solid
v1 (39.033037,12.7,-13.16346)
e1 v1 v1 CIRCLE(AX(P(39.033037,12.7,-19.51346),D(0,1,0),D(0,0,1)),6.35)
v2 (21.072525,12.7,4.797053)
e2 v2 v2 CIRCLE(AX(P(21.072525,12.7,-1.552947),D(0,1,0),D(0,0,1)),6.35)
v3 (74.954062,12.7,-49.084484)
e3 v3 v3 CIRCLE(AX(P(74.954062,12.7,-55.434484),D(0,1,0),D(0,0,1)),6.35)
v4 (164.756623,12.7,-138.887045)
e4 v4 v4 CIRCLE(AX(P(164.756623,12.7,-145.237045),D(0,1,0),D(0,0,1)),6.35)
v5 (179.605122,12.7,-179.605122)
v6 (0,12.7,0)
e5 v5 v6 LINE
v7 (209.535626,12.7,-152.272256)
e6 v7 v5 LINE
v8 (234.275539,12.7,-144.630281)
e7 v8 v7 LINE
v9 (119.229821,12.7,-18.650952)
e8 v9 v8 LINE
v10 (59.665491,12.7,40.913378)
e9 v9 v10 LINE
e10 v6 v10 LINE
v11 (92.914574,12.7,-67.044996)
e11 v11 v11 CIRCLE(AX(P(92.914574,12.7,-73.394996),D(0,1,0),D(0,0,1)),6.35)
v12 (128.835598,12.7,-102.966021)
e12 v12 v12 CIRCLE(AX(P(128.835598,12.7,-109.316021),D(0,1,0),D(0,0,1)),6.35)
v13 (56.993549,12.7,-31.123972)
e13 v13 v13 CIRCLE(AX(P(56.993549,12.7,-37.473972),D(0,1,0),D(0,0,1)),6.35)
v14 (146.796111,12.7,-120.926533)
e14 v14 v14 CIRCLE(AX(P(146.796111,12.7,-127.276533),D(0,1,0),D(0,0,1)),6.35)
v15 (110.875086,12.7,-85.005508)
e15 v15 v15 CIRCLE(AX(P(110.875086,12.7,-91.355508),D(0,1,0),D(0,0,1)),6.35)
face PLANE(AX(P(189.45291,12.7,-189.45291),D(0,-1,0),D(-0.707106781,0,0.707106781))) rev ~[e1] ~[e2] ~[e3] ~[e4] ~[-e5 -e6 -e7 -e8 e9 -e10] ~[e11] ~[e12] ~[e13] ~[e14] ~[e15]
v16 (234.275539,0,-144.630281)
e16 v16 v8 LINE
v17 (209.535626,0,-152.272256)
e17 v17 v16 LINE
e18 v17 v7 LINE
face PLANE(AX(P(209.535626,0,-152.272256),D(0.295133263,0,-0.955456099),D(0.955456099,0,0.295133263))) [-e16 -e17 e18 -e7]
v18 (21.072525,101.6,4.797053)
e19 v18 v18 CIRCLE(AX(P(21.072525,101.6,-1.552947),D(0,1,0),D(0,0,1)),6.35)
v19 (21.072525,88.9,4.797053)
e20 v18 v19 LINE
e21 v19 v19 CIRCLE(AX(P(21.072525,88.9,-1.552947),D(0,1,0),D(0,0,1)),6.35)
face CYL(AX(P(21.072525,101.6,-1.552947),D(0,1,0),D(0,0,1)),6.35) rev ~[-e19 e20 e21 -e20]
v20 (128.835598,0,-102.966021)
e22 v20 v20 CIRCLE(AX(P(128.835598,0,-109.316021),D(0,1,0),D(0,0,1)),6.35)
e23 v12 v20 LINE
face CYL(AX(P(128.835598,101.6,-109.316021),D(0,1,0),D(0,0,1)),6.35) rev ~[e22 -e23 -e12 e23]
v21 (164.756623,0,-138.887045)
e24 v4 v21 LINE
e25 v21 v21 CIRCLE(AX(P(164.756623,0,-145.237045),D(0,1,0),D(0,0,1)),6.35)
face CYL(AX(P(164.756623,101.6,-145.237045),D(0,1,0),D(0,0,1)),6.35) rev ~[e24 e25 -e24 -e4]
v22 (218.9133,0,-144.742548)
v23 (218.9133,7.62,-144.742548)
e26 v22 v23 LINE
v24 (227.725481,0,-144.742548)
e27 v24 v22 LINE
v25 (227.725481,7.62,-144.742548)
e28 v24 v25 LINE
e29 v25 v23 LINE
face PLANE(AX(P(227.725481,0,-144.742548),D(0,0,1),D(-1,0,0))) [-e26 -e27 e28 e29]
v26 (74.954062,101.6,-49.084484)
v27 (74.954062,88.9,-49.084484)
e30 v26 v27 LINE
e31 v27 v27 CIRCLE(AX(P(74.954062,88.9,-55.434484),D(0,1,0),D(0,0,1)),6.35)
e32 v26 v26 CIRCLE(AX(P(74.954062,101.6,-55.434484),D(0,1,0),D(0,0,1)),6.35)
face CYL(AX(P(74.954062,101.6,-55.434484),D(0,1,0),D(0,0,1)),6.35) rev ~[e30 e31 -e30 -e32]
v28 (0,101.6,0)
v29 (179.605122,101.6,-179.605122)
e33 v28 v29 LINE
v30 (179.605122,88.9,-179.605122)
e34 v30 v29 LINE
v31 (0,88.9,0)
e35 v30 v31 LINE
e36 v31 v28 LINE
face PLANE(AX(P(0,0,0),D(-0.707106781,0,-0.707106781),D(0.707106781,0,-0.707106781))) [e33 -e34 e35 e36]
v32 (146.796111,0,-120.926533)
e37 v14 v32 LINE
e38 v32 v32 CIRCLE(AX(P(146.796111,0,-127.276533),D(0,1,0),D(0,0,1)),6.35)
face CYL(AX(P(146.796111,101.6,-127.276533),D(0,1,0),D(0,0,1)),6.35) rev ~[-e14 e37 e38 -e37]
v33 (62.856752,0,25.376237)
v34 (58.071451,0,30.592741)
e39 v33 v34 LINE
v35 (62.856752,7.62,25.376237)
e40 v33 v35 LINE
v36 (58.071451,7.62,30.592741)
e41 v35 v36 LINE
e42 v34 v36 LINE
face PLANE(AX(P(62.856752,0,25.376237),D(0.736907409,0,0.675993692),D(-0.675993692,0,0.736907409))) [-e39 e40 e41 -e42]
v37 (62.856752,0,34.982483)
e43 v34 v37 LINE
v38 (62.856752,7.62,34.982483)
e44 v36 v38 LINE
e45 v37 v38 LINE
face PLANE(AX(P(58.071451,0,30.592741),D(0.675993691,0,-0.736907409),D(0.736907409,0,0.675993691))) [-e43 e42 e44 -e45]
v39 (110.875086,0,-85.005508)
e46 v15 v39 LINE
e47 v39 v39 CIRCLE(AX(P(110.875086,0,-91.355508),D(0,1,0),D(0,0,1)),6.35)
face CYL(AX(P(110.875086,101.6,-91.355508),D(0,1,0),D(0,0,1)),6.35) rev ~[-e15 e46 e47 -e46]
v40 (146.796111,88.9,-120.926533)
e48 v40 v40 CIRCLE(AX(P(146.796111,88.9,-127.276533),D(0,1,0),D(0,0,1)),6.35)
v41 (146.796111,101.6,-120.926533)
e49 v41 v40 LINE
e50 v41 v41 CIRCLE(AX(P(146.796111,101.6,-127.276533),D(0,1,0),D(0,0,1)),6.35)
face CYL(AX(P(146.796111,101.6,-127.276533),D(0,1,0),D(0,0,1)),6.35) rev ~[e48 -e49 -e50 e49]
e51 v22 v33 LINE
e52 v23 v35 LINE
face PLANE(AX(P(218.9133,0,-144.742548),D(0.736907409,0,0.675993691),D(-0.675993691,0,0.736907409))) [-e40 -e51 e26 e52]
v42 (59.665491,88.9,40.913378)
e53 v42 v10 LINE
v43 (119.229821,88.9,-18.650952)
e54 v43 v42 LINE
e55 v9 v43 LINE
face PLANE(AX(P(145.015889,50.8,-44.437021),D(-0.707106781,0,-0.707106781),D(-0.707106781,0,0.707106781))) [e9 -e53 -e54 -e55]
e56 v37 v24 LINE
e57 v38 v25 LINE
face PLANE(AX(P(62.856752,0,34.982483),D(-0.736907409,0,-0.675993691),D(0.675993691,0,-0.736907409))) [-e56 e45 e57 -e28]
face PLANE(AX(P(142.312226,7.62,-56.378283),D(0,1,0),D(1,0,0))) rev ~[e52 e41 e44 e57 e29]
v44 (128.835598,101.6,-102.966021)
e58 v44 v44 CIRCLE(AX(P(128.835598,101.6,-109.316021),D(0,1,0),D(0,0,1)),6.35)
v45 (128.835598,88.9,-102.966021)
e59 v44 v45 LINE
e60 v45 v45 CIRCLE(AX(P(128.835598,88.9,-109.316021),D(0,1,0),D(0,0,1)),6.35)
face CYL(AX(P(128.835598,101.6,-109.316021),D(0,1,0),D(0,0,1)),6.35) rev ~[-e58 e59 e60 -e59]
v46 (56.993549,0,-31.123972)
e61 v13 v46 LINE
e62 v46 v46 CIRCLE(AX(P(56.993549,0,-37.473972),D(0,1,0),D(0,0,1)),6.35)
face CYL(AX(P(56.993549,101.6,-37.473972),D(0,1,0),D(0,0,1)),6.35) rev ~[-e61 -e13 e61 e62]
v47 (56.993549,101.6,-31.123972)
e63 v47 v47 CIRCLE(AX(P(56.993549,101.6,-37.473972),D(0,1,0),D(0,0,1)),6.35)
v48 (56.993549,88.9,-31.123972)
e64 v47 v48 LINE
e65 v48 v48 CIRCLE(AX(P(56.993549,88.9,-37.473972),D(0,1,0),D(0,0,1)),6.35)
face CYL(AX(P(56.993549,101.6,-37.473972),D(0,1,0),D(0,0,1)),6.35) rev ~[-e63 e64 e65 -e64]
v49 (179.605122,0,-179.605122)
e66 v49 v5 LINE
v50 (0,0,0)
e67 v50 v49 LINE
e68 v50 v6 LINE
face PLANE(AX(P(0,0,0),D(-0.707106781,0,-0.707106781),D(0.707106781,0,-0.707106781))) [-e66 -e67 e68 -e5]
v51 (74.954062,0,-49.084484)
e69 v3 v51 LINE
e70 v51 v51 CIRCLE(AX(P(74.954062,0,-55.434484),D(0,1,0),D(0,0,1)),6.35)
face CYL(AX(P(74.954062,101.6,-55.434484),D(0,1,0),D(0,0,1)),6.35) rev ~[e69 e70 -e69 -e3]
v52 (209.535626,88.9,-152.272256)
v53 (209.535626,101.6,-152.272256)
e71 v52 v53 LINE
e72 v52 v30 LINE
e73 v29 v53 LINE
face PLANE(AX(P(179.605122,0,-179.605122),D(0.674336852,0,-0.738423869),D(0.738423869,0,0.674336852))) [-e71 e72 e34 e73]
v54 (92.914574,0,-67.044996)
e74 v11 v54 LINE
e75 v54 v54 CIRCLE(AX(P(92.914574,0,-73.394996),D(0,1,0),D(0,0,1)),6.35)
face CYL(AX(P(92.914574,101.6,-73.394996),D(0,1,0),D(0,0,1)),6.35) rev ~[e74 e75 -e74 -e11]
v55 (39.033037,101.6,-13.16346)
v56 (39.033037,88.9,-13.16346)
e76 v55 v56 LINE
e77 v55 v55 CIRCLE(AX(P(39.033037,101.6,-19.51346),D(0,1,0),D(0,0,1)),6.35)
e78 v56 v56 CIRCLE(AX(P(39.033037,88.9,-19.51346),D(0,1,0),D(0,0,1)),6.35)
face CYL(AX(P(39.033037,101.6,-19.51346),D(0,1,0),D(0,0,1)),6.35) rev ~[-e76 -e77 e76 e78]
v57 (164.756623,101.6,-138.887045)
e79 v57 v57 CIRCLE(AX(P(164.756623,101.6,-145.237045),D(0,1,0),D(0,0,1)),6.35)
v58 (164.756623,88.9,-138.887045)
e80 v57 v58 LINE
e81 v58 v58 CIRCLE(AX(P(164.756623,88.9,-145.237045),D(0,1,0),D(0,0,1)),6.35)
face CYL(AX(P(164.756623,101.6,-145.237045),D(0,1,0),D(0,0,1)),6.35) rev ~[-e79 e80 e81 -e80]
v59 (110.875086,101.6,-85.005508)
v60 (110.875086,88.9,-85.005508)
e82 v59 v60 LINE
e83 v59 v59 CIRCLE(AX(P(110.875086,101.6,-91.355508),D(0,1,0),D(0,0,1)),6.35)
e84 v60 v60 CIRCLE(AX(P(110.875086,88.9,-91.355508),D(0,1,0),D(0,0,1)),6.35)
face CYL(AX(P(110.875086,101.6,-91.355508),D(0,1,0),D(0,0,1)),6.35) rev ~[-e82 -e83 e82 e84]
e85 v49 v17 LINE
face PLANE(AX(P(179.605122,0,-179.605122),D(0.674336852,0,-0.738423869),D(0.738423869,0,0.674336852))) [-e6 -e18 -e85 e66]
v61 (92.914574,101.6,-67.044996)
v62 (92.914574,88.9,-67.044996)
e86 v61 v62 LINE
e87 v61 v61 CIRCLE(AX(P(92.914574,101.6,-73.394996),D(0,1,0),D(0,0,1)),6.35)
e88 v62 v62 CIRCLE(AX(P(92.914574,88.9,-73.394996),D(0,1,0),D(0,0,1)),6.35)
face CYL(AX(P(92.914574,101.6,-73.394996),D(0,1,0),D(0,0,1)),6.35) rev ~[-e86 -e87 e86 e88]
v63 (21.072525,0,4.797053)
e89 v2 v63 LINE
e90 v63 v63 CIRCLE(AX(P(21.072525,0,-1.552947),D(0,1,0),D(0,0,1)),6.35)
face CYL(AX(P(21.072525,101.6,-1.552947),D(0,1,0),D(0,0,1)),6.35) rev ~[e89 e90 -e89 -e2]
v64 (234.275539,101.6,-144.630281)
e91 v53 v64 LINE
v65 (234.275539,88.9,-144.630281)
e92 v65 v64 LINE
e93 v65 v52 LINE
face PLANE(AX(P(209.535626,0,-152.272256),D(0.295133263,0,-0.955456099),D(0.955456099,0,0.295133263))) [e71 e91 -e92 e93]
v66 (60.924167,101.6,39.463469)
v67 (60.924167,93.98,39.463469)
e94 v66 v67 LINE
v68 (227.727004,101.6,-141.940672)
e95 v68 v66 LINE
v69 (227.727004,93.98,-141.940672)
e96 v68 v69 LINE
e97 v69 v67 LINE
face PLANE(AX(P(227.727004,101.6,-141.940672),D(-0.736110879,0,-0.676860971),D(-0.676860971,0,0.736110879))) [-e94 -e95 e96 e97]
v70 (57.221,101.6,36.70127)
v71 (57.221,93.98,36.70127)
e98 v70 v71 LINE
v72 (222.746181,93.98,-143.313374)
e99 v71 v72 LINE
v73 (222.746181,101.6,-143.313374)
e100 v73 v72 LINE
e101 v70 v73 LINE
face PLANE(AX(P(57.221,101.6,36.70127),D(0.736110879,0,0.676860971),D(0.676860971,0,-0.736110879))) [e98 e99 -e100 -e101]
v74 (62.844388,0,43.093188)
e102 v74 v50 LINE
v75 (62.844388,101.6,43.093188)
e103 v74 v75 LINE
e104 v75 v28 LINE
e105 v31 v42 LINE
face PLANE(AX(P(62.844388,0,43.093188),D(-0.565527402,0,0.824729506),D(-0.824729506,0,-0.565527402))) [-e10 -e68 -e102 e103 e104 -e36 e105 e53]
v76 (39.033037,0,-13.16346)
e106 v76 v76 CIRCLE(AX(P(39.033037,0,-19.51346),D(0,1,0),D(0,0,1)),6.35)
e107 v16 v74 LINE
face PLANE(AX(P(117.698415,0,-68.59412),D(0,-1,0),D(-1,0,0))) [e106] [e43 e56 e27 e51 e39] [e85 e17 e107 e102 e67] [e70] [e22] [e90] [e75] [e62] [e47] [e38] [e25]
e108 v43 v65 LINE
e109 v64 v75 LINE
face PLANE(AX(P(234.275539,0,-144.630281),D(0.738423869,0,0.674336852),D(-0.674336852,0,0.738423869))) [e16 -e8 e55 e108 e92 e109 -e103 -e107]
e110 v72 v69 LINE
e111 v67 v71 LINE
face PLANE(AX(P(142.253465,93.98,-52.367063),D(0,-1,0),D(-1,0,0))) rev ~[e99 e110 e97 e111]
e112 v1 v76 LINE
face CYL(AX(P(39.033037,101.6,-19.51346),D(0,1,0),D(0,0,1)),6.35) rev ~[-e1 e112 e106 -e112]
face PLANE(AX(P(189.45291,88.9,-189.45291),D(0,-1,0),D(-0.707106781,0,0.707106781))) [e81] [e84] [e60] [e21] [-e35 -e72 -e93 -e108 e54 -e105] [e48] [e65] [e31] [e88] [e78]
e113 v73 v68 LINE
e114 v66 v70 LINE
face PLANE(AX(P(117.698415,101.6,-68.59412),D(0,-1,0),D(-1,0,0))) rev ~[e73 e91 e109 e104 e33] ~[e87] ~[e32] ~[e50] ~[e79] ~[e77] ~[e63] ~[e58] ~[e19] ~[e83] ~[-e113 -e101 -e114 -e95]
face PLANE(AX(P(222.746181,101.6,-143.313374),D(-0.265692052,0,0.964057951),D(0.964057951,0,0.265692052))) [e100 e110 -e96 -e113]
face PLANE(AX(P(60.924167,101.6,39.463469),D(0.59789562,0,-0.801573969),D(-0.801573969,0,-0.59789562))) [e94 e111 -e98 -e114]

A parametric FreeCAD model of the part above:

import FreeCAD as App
import Part
import Sketcher

V = App.Vector
Q = App.Units.Quantity

doc = App.newDocument("Part")
params = doc.addObject("Spreadsheet::Sheet", "Params")
for row, (alias, value) in enumerate([
    ("sketch1_length", "10 in"),
    ("sketch1_length2", "3 in"),
    ("pad1_length", "4 in"),
    ("sketch2_height", "3 in"),
    ("pocket1_length", "2.8 in"),
    ("sketch3_diameter", "0.5 in"),
    ("pocket3_length", "0.3 in"),
    ("pocket4_length", "0.3 in"),
], start=1):
    params.set(f"A{row}", alias)
    params.set(f"B{row}", "=" + value)
    params.setAlias(f"B{row}", alias)

body = doc.addObject("PartDesign::Body", "Body")

# Sketch on XZ plane
sketch1 = body.newObject("Sketcher::SketchObject", "Sketch")
sketch1.AttachmentSupport = (doc.getObject("XZ_Plane"), [""])
sketch1.MapMode = "FlatFace"
sketch1.addGeometry(Part.LineSegment(V(180, -180, 0), V(0, 0, 0)), False)
sketch1.addGeometry(Part.LineSegment(V(0, 0, 0), V(63, 43, 0)), False)
sketch1.addGeometry(Part.LineSegment(V(63, 43, 0), V(234, -145, 0)), False)
sketch1.addGeometry(Part.LineSegment(V(234, -145, 0), V(210, -152, 0)), False)
sketch1.addGeometry(Part.LineSegment(V(210, -152, 0), V(180, -180, 0)), False)
sketch1.addConstraint(Sketcher.Constraint("Coincident", 0, 2, 1, 1))
sketch1.addConstraint(Sketcher.Constraint("Coincident", 1, 2, 2, 1))
sketch1.addConstraint(Sketcher.Constraint("Coincident", 2, 2, 3, 1))
sketch1.addConstraint(Sketcher.Constraint("Coincident", 3, 2, 4, 1))
sketch1.addConstraint(Sketcher.Constraint("Coincident", 4, 2, 0, 1))
sketch1.addConstraint(Sketcher.Constraint("Coincident", 0, 2, -1, 1))
sketch1.addConstraint(Sketcher.Constraint("Perpendicular", 2, 4))
sketch1.addConstraint(Sketcher.Constraint("Distance", 0, Q("10 in")))
sketch1.addConstraint(Sketcher.Constraint("Distance", 1, Q("3 in")))
sketch1.addConstraint(Sketcher.Constraint("Angle", 0, Q("135 deg")))
sketch1.addConstraint(Sketcher.Constraint("Distance", 3, Q("25.893302 mm")))
sketch1.addConstraint(Sketcher.Constraint("DistanceX", -1, 1, 1, 2, Q("62.844388 mm")))
sketch1.addConstraint(Sketcher.Constraint("DistanceX", -1, 1, 2, 2, Q("234.275539 mm")))
sketch1.addConstraint(Sketcher.Constraint("DistanceY", 2, 2, -1, 1, Q("144.630281 mm")))
sketch1.setExpression("Constraints[7]", "Params.sketch1_length")
sketch1.setExpression("Constraints[8]", "Params.sketch1_length2")
pad1 = body.newObject("PartDesign::Pad", "Pad")
pad1.Profile = sketch1
pad1.setExpression("Length", "Params.pad1_length")
pad1.Reversed = True

# Sketch on an angled plane
sketch2 = body.newObject("Sketcher::SketchObject", "Sketch001")
sketch2.Placement = App.Placement(V(0, 0, 0), App.Rotation(V(-0.707106781, 0, 0.707106781), V(0, 0.999999999, 0), V(-0.707106781, 0, -0.707106781), "ZXY"))
sketch2.addGeometry(Part.LineSegment(V(-268, 89, 0), V(-268, 13, 0)), False)
sketch2.addGeometry(Part.LineSegment(V(-268, 13, 0), V(0, 13, 0)), False)
sketch2.addGeometry(Part.LineSegment(V(0, 13, 0), V(0, 89, 0)), False)
sketch2.addGeometry(Part.LineSegment(V(0, 89, 0), V(-268, 89, 0)), False)
sketch2.addConstraint(Sketcher.Constraint("Coincident", 0, 2, 1, 1))
sketch2.addConstraint(Sketcher.Constraint("Coincident", 1, 2, 2, 1))
sketch2.addConstraint(Sketcher.Constraint("Coincident", 2, 2, 3, 1))
sketch2.addConstraint(Sketcher.Constraint("Coincident", 3, 2, 0, 1))
sketch2.addConstraint(Sketcher.Constraint("Vertical", 0))
sketch2.addConstraint(Sketcher.Constraint("Horizontal", 1))
sketch2.addConstraint(Sketcher.Constraint("Vertical", 2))
sketch2.addConstraint(Sketcher.Constraint("Horizontal", 3))
sketch2.addConstraint(Sketcher.Constraint("PointOnObject", 1, 2, -2))
sketch2.addConstraint(Sketcher.Constraint("DistanceY", 0, 2, 0, 1, Q("3 in")))
sketch2.addConstraint(Sketcher.Constraint("DistanceY", -1, 1, 0, 2, Q("0.5 in")))
sketch2.addConstraint(Sketcher.Constraint("DistanceX", 1, 1, 1, 2, Q("267.926874 mm")))
sketch2.setExpression("Constraints[9]", "Params.sketch2_height")
pocket1 = body.newObject("PartDesign::Pocket", "Pocket")
pocket1.Profile = sketch2
pocket1.setExpression("Length", "Params.pocket1_length")

# Sketch on XZ plane
sketch3 = body.newObject("Sketcher::SketchObject", "Sketch002")
sketch3.AttachmentSupport = (doc.getObject("XZ_Plane"), [""])
sketch3.MapMode = "FlatFace"
sketch3.AttachmentOffset = App.Placement(V(0, 0, -4 * 25.4), App.Rotation())
sketch3.addGeometry(Part.Circle(V(21, -2, 0), V(0, 0, 1), 6), False)
sketch3.addGeometry(Part.Circle(V(39, -20, 0), V(0, 0, 1), 6), False)
sketch3.addGeometry(Part.Circle(V(57, -37, 0), V(0, 0, 1), 6), False)
sketch3.addGeometry(Part.Circle(V(75, -55, 0), V(0, 0, 1), 6), False)
sketch3.addGeometry(Part.Circle(V(93, -73, 0), V(0, 0, 1), 6), False)
sketch3.addGeometry(Part.Circle(V(111, -91, 0), V(0, 0, 1), 6), False)
sketch3.addGeometry(Part.Circle(V(129, -109, 0), V(0, 0, 1), 6), False)
sketch3.addGeometry(Part.Circle(V(147, -127, 0), V(0, 0, 1), 6), False)
sketch3.addGeometry(Part.Circle(V(165, -145, 0), V(0, 0, 1), 6), False)
sketch3.addConstraint(Sketcher.Constraint("Equal", 0, 1))
sketch3.addConstraint(Sketcher.Constraint("Equal", 1, 2))
sketch3.addConstraint(Sketcher.Constraint("Equal", 2, 3))
sketch3.addConstraint(Sketcher.Constraint("Equal", 3, 4))
sketch3.addConstraint(Sketcher.Constraint("Equal", 4, 5))
sketch3.addConstraint(Sketcher.Constraint("Equal", 5, 6))
sketch3.addConstraint(Sketcher.Constraint("Equal", 6, 7))
sketch3.addConstraint(Sketcher.Constraint("Equal", 7, 8))
sketch3.addConstraint(Sketcher.Constraint("Diameter", 0, Q("0.5 in")))
sketch3.addConstraint(Sketcher.Constraint("DistanceX", -1, 1, 6, 3, Q("128.835598 mm")))
sketch3.addConstraint(Sketcher.Constraint("DistanceY", 1, 3, -1, 1, Q("19.51346 mm")))
sketch3.addConstraint(Sketcher.Constraint("DistanceX", -1, 1, 2, 3, Q("56.993549 mm")))
sketch3.addConstraint(Sketcher.Constraint("DistanceY", 2, 3, -1, 1, Q("37.473972 mm")))
sketch3.addConstraint(Sketcher.Constraint("DistanceX", -1, 1, 3, 3, Q("74.954062 mm")))
sketch3.addConstraint(Sketcher.Constraint("DistanceY", 5, 3, -1, 1, Q("91.355508 mm")))
sketch3.addConstraint(Sketcher.Constraint("DistanceY", 6, 3, -1, 1, Q("109.316021 mm")))
sketch3.addConstraint(Sketcher.Constraint("DistanceX", -1, 1, 7, 3, Q("146.796111 mm")))
sketch3.addConstraint(Sketcher.Constraint("DistanceX", 0, 3, 4, 3, Q("71.842049 mm")))
sketch3.addConstraint(Sketcher.Constraint("DistanceY", 4, 3, 0, 3, Q("71.842049 mm")))
sketch3.addConstraint(Sketcher.Constraint("DistanceX", 1, 3, 5, 3, Q("71.842049 mm")))
sketch3.addConstraint(Sketcher.Constraint("DistanceX", 0, 3, 5, 3, Q("89.802561 mm")))
sketch3.addConstraint(Sketcher.Constraint("DistanceY", 5, 3, 0, 3, Q("89.802561 mm")))
sketch3.addConstraint(Sketcher.Constraint("DistanceX", 1, 3, 6, 3, Q("89.802561 mm")))
sketch3.addConstraint(Sketcher.Constraint("DistanceY", 7, 3, 3, 3, Q("71.842049 mm")))
sketch3.addConstraint(Sketcher.Constraint("DistanceY", 7, 3, 2, 3, Q("89.802561 mm")))
sketch3.addConstraint(Sketcher.Constraint("DistanceX", 4, 3, 8, 3, Q("71.842049 mm")))
sketch3.addConstraint(Sketcher.Constraint("DistanceY", 8, 3, 4, 3, Q("71.842049 mm")))
sketch3.setExpression("Constraints[8]", "Params.sketch3_diameter")
pocket2 = body.newObject("PartDesign::Pocket", "Pocket001")
pocket2.Profile = sketch3
pocket2.Type = "ThroughAll"
pocket2.Reversed = True

# Sketch on XZ plane
sketch4 = body.newObject("Sketcher::SketchObject", "Sketch003")
sketch4.AttachmentSupport = (doc.getObject("XZ_Plane"), [""])
sketch4.MapMode = "FlatFace"
sketch4.AttachmentOffset = App.Placement(V(0, 0, -4 * 25.4), App.Rotation())
sketch4.addGeometry(Part.LineSegment(V(222.7, -143.3, 0), V(57.2, 36.7, 0)), False)
sketch4.addGeometry(Part.LineSegment(V(57.2, 36.7, 0), V(60.9, 39.5, 0)), False)
sketch4.addGeometry(Part.LineSegment(V(60.9, 39.5, 0), V(227.7, -141.9, 0)), False)
sketch4.addGeometry(Part.LineSegment(V(227.7, -141.9, 0), V(222.7, -143.3, 0)), False)
sketch4.addConstraint(Sketcher.Constraint("Coincident", 0, 2, 1, 1))
sketch4.addConstraint(Sketcher.Constraint("Coincident", 1, 2, 2, 1))
sketch4.addConstraint(Sketcher.Constraint("Coincident", 2, 2, 3, 1))
sketch4.addConstraint(Sketcher.Constraint("Coincident", 3, 2, 0, 1))
sketch4.addConstraint(Sketcher.Constraint("Parallel", 0, 2))
sketch4.addConstraint(Sketcher.Constraint("DistanceX", -1, 1, 0, 2, Q("57.221 mm")))
sketch4.addConstraint(Sketcher.Constraint("DistanceY", 0, 2, 1, 2, Q("2.762199 mm")))
sketch4.addConstraint(Sketcher.Constraint("Distance", 1, Q("4.619869 mm")))
sketch4.addConstraint(Sketcher.Constraint("Distance", 2, Q("246.435892 mm")))
sketch4.addConstraint(Sketcher.Constraint("DistanceY", -1, 1, 0, 2, Q("36.70127 mm")))
sketch4.addConstraint(Sketcher.Constraint("DistanceY", 2, 2, -1, 1, Q("141.940672 mm")))
sketch4.addConstraint(Sketcher.Constraint("DistanceX", -1, 1, 3, 2, Q("222.746181 mm")))
pocket3 = body.newObject("PartDesign::Pocket", "Pocket002")
pocket3.Profile = sketch4
pocket3.setExpression("Length", "Params.pocket3_length")
pocket3.Reversed = True

# Sketch on XZ plane
sketch5 = body.newObject("Sketcher::SketchObject", "Sketch004")
sketch5.AttachmentSupport = (doc.getObject("XZ_Plane"), [""])
sketch5.MapMode = "FlatFace"
sketch5.addGeometry(Part.LineSegment(V(63, 25, 0), V(219, -145, 0)), False)
sketch5.addGeometry(Part.LineSegment(V(219, -145, 0), V(228, -145, 0)), False)
sketch5.addGeometry(Part.LineSegment(V(228, -145, 0), V(63, 35, 0)), False)
sketch5.addGeometry(Part.LineSegment(V(63, 35, 0), V(58, 31, 0)), False)
sketch5.addGeometry(Part.LineSegment(V(58, 31, 0), V(63, 25, 0)), False)
sketch5.addConstraint(Sketcher.Constraint("Coincident", 0, 2, 1, 1))
sketch5.addConstraint(Sketcher.Constraint("Coincident", 1, 2, 2, 1))
sketch5.addConstraint(Sketcher.Constraint("Coincident", 2, 2, 3, 1))
sketch5.addConstraint(Sketcher.Constraint("Coincident", 3, 2, 4, 1))
sketch5.addConstraint(Sketcher.Constraint("Coincident", 4, 2, 0, 1))
sketch5.addConstraint(Sketcher.Constraint("Horizontal", 1))
sketch5.addConstraint(Sketcher.Constraint("Parallel", 0, 2))
sketch5.addConstraint(Sketcher.Constraint("Perpendicular", 2, 3))
sketch5.addConstraint(Sketcher.Constraint("Perpendicular", 3, 4))
sketch5.addConstraint(Sketcher.Constraint("Vertical", 2, 2, 4, 2))
sketch5.addConstraint(Sketcher.Constraint("DistanceX", 1, 1, 1, 2, Q("8.812181 mm")))
sketch5.addConstraint(Sketcher.Constraint("DistanceX", -1, 1, 0, 2, Q("218.9133 mm")))
sketch5.addConstraint(Sketcher.Constraint("DistanceX", 3, 2, 2, 2, Q("4.785301 mm")))
sketch5.addConstraint(Sketcher.Constraint("DistanceY", 0, 2, -1, 1, Q("144.742548 mm")))
sketch5.addConstraint(Sketcher.Constraint("DistanceX", -1, 1, 3, 2, Q("58.071451 mm")))
pocket4 = body.newObject("PartDesign::Pocket", "Pocket003")
pocket4.Profile = sketch5
pocket4.setExpression("Length", "Params.pocket4_length")

doc.recompute()
